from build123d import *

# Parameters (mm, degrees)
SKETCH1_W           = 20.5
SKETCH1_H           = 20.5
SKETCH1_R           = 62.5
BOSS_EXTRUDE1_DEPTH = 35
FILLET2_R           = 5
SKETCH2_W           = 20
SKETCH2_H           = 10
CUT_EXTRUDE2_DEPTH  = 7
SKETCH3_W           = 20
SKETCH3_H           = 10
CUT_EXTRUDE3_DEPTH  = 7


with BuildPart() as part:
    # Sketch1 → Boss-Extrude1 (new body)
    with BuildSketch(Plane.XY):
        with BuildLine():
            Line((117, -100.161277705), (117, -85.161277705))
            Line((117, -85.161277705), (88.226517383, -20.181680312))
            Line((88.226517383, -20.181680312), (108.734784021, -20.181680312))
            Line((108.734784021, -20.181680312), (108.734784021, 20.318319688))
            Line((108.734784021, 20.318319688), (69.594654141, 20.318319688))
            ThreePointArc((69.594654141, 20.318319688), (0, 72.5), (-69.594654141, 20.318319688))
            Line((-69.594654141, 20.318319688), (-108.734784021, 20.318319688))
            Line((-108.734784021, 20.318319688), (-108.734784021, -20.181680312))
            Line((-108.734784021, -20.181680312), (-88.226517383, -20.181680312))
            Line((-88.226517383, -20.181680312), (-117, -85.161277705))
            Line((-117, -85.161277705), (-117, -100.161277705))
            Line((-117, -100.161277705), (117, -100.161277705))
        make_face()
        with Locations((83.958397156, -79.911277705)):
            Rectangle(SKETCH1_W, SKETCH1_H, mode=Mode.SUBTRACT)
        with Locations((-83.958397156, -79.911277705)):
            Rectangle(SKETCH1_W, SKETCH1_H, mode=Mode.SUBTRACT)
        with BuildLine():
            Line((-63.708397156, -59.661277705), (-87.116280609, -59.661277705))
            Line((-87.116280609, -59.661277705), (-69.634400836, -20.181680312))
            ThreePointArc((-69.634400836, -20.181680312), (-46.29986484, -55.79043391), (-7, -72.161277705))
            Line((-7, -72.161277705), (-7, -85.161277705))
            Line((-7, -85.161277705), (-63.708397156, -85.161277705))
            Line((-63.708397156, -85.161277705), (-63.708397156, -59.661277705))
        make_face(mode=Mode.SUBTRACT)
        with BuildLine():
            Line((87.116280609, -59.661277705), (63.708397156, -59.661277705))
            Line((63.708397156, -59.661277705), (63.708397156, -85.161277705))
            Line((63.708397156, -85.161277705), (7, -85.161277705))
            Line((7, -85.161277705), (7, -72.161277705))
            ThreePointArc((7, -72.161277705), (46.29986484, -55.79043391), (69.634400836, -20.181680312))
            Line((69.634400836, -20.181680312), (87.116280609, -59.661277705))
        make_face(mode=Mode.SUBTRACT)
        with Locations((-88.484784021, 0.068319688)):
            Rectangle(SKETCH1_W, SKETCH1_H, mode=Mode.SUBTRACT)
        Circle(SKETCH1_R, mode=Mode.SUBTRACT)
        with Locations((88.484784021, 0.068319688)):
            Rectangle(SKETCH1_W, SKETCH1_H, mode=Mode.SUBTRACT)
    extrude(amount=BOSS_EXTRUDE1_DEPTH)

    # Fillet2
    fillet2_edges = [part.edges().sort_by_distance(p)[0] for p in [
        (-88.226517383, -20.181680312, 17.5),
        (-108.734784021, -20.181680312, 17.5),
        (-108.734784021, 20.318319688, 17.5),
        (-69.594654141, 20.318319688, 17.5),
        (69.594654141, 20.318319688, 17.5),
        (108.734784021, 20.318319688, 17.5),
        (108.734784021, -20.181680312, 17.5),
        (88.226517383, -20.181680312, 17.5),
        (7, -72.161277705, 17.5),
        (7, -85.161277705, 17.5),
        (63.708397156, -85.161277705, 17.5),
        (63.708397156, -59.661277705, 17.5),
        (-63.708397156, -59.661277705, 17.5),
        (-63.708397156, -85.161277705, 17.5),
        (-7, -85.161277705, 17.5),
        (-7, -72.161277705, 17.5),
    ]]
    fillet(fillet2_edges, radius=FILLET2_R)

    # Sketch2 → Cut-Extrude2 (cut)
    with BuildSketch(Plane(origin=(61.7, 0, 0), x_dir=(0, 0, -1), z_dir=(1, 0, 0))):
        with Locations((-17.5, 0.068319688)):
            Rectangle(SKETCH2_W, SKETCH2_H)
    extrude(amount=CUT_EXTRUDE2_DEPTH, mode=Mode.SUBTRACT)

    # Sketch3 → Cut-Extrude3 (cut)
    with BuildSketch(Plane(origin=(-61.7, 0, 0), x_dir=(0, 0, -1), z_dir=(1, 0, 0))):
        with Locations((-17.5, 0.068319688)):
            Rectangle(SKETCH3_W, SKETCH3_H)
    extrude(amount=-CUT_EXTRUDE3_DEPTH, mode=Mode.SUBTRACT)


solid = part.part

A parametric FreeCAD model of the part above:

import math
import FreeCAD as App
import Part
import Sketcher

V = App.Vector
Q = App.Units.Quantity


def edges_at(feature, points):
    """Names of the edges that pass closest to the given points."""
    edges = feature.Shape.Edges
    near = lambda p: min(range(len(edges)), key=lambda i: edges[i].distToShape(Part.Vertex(*p))[0])
    return sorted({f"Edge{near(p) + 1}" for p in points})


def add_polygon(sketch, points):
    """Adds a closed chain of lines whose ends are joined by coincident constraints."""
    first, n = sketch.GeometryCount, len(points)
    for a, b in zip(points, points[1:] + points[:1]):
        sketch.addGeometry(Part.LineSegment(App.Vector(*a, 0), App.Vector(*b, 0)), False)
    for i in range(n):
        sketch.addConstraint(Sketcher.Constraint("Coincident", first + i, 2, first + (i + 1) % n, 1))

doc = App.newDocument("Part")
params = doc.addObject("Spreadsheet::Sheet", "Params")
for row, (alias, value) in enumerate([
    ("sketch1_diameter", "125 mm"),
    ("sketch1_radius", "72.5 mm"),
    ("sketch1_width", "234 mm"),
    ("sketch1_height", "15 mm"),
    ("sketch1_height2", "13 mm"),
    ("pad1_length", "35 mm"),
    ("fillet_radius", "5 mm"),
    ("sketch2_width", "10 mm"),
    ("sketch2_height", "20 mm"),
    ("pocket1_length", "7 mm"),
    ("sketch3_width", "10 mm"),
    ("sketch3_height", "20 mm"),
    ("pocket2_length", "7 mm"),
], start=1):
    params.set(f"A{row}", alias)
    params.set(f"B{row}", "=" + value)
    params.setAlias(f"B{row}", alias)

body = doc.addObject("PartDesign::Body", "Body")

# Sketch on XY plane
sketch1 = body.newObject("Sketcher::SketchObject", "Sketch")
sketch1.AttachmentSupport = (doc.getObject("XY_Plane"), [""])
sketch1.MapMode = "FlatFace"
sketch1.addGeometry(Part.LineSegment(V(117, -100.161278, 0), V(117, -85.161278, 0)), False)  # 0
sketch1.addGeometry(Part.LineSegment(V(117, -85.161278, 0), V(88.226517, -20.18168, 0)), False)  # 1
sketch1.addGeometry(Part.LineSegment(V(88.226517, -20.18168, 0), V(108.734784, -20.18168, 0)), False)  # 2
sketch1.addGeometry(Part.LineSegment(V(108.734784, -20.18168, 0), V(108.734784, 20.31832, 0)), False)  # 3
sketch1.addGeometry(Part.LineSegment(V(108.734784, 20.31832, 0), V(69.594654, 20.31832, 0)), False)  # 4
sketch1.addGeometry(Part.ArcOfCircle(Part.Circle(V(0, 0, 0), V(0, 0, 1), 72.5), math.radians(16.275286), math.radians(163.724714)), False)  # 5
sketch1.addGeometry(Part.LineSegment(V(-69.594654, 20.31832, 0), V(-108.734784, 20.31832, 0)), False)  # 6
sketch1.addGeometry(Part.LineSegment(V(-108.734784, 20.31832, 0), V(-108.734784, -20.18168, 0)), False)  # 7
sketch1.addGeometry(Part.LineSegment(V(-108.734784, -20.18168, 0), V(-88.226517, -20.18168, 0)), False)  # 8
sketch1.addGeometry(Part.LineSegment(V(-88.226517, -20.18168, 0), V(-117, -85.161278, 0)), False)  # 9
sketch1.addGeometry(Part.LineSegment(V(-117, -85.161278, 0), V(-117, -100.161278, 0)), False)  # 10
sketch1.addGeometry(Part.LineSegment(V(-117, -100.161278, 0), V(117, -100.161278, 0)), False)  # 11
add_polygon(sketch1, [(-73.708397, -90.161278), (-94.208397, -90.161278), (-94.208397, -69.661278), (-73.708397, -69.661278)])  # lines 12-15
sketch1.addGeometry(Part.LineSegment(V(-63.708397, -85.161278, 0), V(-63.708397, -59.661278, 0)), False)  # 16
sketch1.addGeometry(Part.LineSegment(V(-63.708397, -59.661278, 0), V(-87.116281, -59.661278, 0)), False)  # 17
sketch1.addGeometry(Part.LineSegment(V(-87.116281, -59.661278, 0), V(-69.634401, -20.18168, 0)), False)  # 18
sketch1.addGeometry(Part.ArcOfCircle(Part.Circle(V(0, 0, 0), V(0, 0, 1), 72.5), math.radians(-163.837174), math.radians(-95.540638)), False)  # 19
sketch1.addGeometry(Part.LineSegment(V(-7, -72.161278, 0), V(-7, -85.161278, 0)), False)  # 20
sketch1.addGeometry(Part.LineSegment(V(-7, -85.161278, 0), V(-63.708397, -85.161278, 0)), False)  # 21
sketch1.addGeometry(Part.LineSegment(V(69.634401, -20.18168, 0), V(87.116281, -59.661278, 0)), False)  # 22
sketch1.addGeometry(Part.LineSegment(V(87.116281, -59.661278, 0), V(63.708397, -59.661278, 0)), False)  # 23
sketch1.addGeometry(Part.LineSegment(V(63.708397, -59.661278, 0), V(63.708397, -85.161278, 0)), False)  # 24
sketch1.addGeometry(Part.LineSegment(V(63.708397, -85.161278, 0), V(7, -85.161278, 0)), False)  # 25
sketch1.addGeometry(Part.LineSegment(V(7, -85.161278, 0), V(7, -72.161278, 0)), False)  # 26
sketch1.addGeometry(Part.ArcOfCircle(Part.Circle(V(0, 0, 0), V(0, 0, 1), 72.5), math.radians(-84.459362), math.radians(-16.162826)), False)  # 27
add_polygon(sketch1, [(94.208397, -90.161278), (73.708397, -90.161278), (73.708397, -69.661278), (94.208397, -69.661278)])  # lines 28-31
add_polygon(sketch1, [(-78.234784, -10.18168), (-98.734784, -10.18168), (-98.734784, 10.31832), (-78.234784, 10.31832)])  # lines 32-35
sketch1.addGeometry(Part.Circle(V(0, 0, 0), V(0, 0, 1), 62.5), False)  # 36
add_polygon(sketch1, [(98.734784, -10.18168), (78.234784, -10.18168), (78.234784, 10.31832), (98.734784, 10.31832)])  # lines 37-40
sketch1.addConstraint(Sketcher.Constraint("Coincident", 0, 2, 1, 1))
sketch1.addConstraint(Sketcher.Constraint("Coincident", 1, 2, 2, 1))
sketch1.addConstraint(Sketcher.Constraint("Coincident", 2, 2, 3, 1))
sketch1.addConstraint(Sketcher.Constraint("Coincident", 3, 2, 4, 1))
sketch1.addConstraint(Sketcher.Constraint("Coincident", 4, 2, 5, 1))
sketch1.addConstraint(Sketcher.Constraint("Coincident", 5, 2, 6, 1))
sketch1.addConstraint(Sketcher.Constraint("Coincident", 6, 2, 7, 1))
sketch1.addConstraint(Sketcher.Constraint("Coincident", 7, 2, 8, 1))
sketch1.addConstraint(Sketcher.Constraint("Coincident", 8, 2, 9, 1))
sketch1.addConstraint(Sketcher.Constraint("Coincident", 9, 2, 10, 1))
sketch1.addConstraint(Sketcher.Constraint("Coincident", 10, 2, 11, 1))
sketch1.addConstraint(Sketcher.Constraint("Coincident", 11, 2, 0, 1))
sketch1.addConstraint(Sketcher.Constraint("Coincident", 16, 2, 17, 1))
sketch1.addConstraint(Sketcher.Constraint("Coincident", 17, 2, 18, 1))
sketch1.addConstraint(Sketcher.Constraint("Coincident", 18, 2, 19, 1))
sketch1.addConstraint(Sketcher.Constraint("Coincident", 19, 2, 20, 1))
sketch1.addConstraint(Sketcher.Constraint("Coincident", 20, 2, 21, 1))
sketch1.addConstraint(Sketcher.Constraint("Coincident", 21, 2, 16, 1))
sketch1.addConstraint(Sketcher.Constraint("Coincident", 22, 2, 23, 1))
sketch1.addConstraint(Sketcher.Constraint("Coincident", 23, 2, 24, 1))
sketch1.addConstraint(Sketcher.Constraint("Coincident", 24, 2, 25, 1))
sketch1.addConstraint(Sketcher.Constraint("Coincident", 25, 2, 26, 1))
sketch1.addConstraint(Sketcher.Constraint("Coincident", 26, 2, 27, 1))
sketch1.addConstraint(Sketcher.Constraint("Coincident", 27, 2, 22, 1))
sketch1.addConstraint(Sketcher.Constraint("Vertical", 0))
sketch1.addConstraint(Sketcher.Constraint("Horizontal", 2))
sketch1.addConstraint(Sketcher.Constraint("Vertical", 3))
sketch1.addConstraint(Sketcher.Constraint("Horizontal", 4))
sketch1.addConstraint(Sketcher.Constraint("Horizontal", 6))
sketch1.addConstraint(Sketcher.Constraint("Vertical", 7))
sketch1.addConstraint(Sketcher.Constraint("Horizontal", 8))
sketch1.addConstraint(Sketcher.Constraint("Vertical", 10))
sketch1.addConstraint(Sketcher.Constraint("Horizontal", 11))
sketch1.addConstraint(Sketcher.Constraint("Horizontal", 12))
sketch1.addConstraint(Sketcher.Constraint("Vertical", 13))
sketch1.addConstraint(Sketcher.Constraint("Horizontal", 14))
sketch1.addConstraint(Sketcher.Constraint("Vertical", 15))
sketch1.addConstraint(Sketcher.Constraint("Vertical", 16))
sketch1.addConstraint(Sketcher.Constraint("Horizontal", 17))
sketch1.addConstraint(Sketcher.Constraint("Vertical", 20))
sketch1.addConstraint(Sketcher.Constraint("Horizontal", 21))
sketch1.addConstraint(Sketcher.Constraint("Horizontal", 23))
sketch1.addConstraint(Sketcher.Constraint("Vertical", 24))
sketch1.addConstraint(Sketcher.Constraint("Horizontal", 25))
sketch1.addConstraint(Sketcher.Constraint("Vertical", 26))
sketch1.addConstraint(Sketcher.Constraint("Horizontal", 28))
sketch1.addConstraint(Sketcher.Constraint("Vertical", 29))
sketch1.addConstraint(Sketcher.Constraint("Horizontal", 30))
sketch1.addConstraint(Sketcher.Constraint("Vertical", 31))
sketch1.addConstraint(Sketcher.Constraint("Horizontal", 32))
sketch1.addConstraint(Sketcher.Constraint("Vertical", 33))
sketch1.addConstraint(Sketcher.Constraint("Horizontal", 34))
sketch1.addConstraint(Sketcher.Constraint("Vertical", 35))
sketch1.addConstraint(Sketcher.Constraint("Horizontal", 37))
sketch1.addConstraint(Sketcher.Constraint("Vertical", 38))
sketch1.addConstraint(Sketcher.Constraint("Horizontal", 39))
sketch1.addConstraint(Sketcher.Constraint("Vertical", 40))
sketch1.addConstraint(Sketcher.Constraint("Coincident", 5, 3, -1, 1))
sketch1.addConstraint(Sketcher.Constraint("Coincident", 19, 3, -1, 1))
sketch1.addConstraint(Sketcher.Constraint("Coincident", 27, 3, -1, 1))
sketch1.addConstraint(Sketcher.Constraint("Coincident", 36, 3, -1, 1))
sketch1.addConstraint(Sketcher.Constraint("Equal", 5, 19))
sketch1.addConstraint(Sketcher.Constraint("Equal", 19, 27))
sketch1.addConstraint(Sketcher.Constraint("Symmetric", 3, 2, 6, 2, -2))
sketch1.addConstraint(Sketcher.Constraint("Symmetric", 1, 2, 8, 2, -2))
sketch1.addConstraint(Sketcher.Constraint("Symmetric", 0, 2, 9, 2, -2))
sketch1.addConstraint(Sketcher.Constraint("Symmetric", 17, 2, 22, 2, -2))
sketch1.addConstraint(Sketcher.Constraint("Symmetric", 21, 2, 24, 2, -2))
sketch1.addConstraint(Sketcher.Constraint("Symmetric", 15, 2, 28, 2, -2))
sketch1.addConstraint(Sketcher.Constraint("Symmetric", 13, 2, 30, 2, -2))
sketch1.addConstraint(Sketcher.Constraint("Symmetric", 35, 2, 37, 2, -2))
sketch1.addConstraint(Sketcher.Constraint("Symmetric", 33, 2, 39, 2, -2))
sketch1.addConstraint(Sketcher.Constraint("Parallel", 9, 18))
sketch1.addConstraint(Sketcher.Constraint("Parallel", 1, 22))
sketch1.addConstraint(Sketcher.Constraint("Horizontal", 8, 2, 18, 2))
sketch1.addConstraint(Sketcher.Constraint("Horizontal", 9, 2, 20, 2))
sketch1.addConstraint(Sketcher.Constraint("Horizontal", 19, 2, 26, 2))
sketch1.addConstraint(Sketcher.Constraint("Equal", 30, 32))
sketch1.addConstraint(Sketcher.Constraint("Equal", 39, 13))
sketch1.addConstraint(Sketcher.Constraint("Equal", 31, 33))
sketch1.addConstraint(Sketcher.Constraint("Diameter", 36, Q("125 mm")))
sketch1.addConstraint(Sketcher.Constraint("Radius", 5, Q("72.5 mm")))
sketch1.addConstraint(Sketcher.Constraint("DistanceX", 11, 1, 11, 2, Q("234 mm")))
sketch1.addConstraint(Sketcher.Constraint("DistanceY", 0, 1, 0, 2, Q("15 mm")))
sketch1.addConstraint(Sketcher.Constraint("DistanceY", 20, 2, 20, 1, Q("13 mm")))
sketch1.addConstraint(Sketcher.Constraint("DistanceX", 12, 2, 12, 1, Q("20.5 mm")))
sketch1.addConstraint(Sketcher.Constraint("DistanceY", 3, 1, 3, 2, Q("40.5 mm")))
sketch1.addConstraint(Sketcher.Constraint("DistanceY", 16, 1, 16, 2, Q("25.5 mm")))
sketch1.addConstraint(Sketcher.Constraint("DistanceX", 19, 2, -1, 1, Q("7 mm")))
sketch1.addConstraint(Sketcher.Constraint("DistanceY", 12, 2, 9, 2, Q("5 mm")))
sketch1.addConstraint(Sketcher.Constraint("DistanceX", 14, 2, 16, 2, Q("10 mm")))
sketch1.addConstraint(Sketcher.Constraint("DistanceX", 7, 2, 32, 2, Q("10 mm")))
sketch1.addConstraint(Sketcher.Constraint("DistanceY", 7, 2, 32, 2, Q("10 mm")))
sketch1.addConstraint(Sketcher.Constraint("DistanceX", 4, 2, 4, 1, Q("39.14013 mm")))
sketch1.addConstraint(Sketcher.Constraint("DistanceX", 18, 2, -1, 1, Q("69.634401 mm")))
sketch1.addConstraint(Sketcher.Constraint("Distance", 1, Q("71.065191 mm")))
sketch1.addConstraint(Sketcher.Constraint("DistanceX", 17, 2, 17, 1, Q("23.407883 mm")))
sketch1.setExpression("Constraints[96]", "Params.sketch1_diameter")
sketch1.setExpression("Constraints[97]", "Params.sketch1_radius")
sketch1.setExpression("Constraints[98]", "Params.sketch1_width")
sketch1.setExpression("Constraints[99]", "Params.sketch1_height")
sketch1.setExpression("Constraints[100]", "Params.sketch1_height2")
pad1 = body.newObject("PartDesign::Pad", "Pad")
pad1.Profile = sketch1
pad1.setExpression("Length", "Params.pad1_length")
doc.recompute()

fillet = body.newObject("PartDesign::Fillet", "Fillet")
fillet.Base = (pad1, edges_at(pad1, [
    (-88.227, -20.182, 17.5),
    (-108.735, -20.182, 17.5),
    (-108.735, 20.318, 17.5),
    (-69.595, 20.318, 17.5),
    (69.595, 20.318, 17.5),
    (108.735, 20.318, 17.5),
    (108.735, -20.182, 17.5),
    (88.227, -20.182, 17.5),
    (7, -72.161, 17.5),
    (7, -85.161, 17.5),
    (63.708, -85.161, 17.5),
    (63.708, -59.661, 17.5),
    (-63.708, -59.661, 17.5),
    (-63.708, -85.161, 17.5),
    (-7, -85.161, 17.5),
    (-7, -72.161, 17.5),
]))
fillet.setExpression("Radius", "Params.fillet_radius")

# Sketch on YZ plane
sketch2 = body.newObject("Sketcher::SketchObject", "Sketch001")
sketch2.AttachmentSupport = (doc.getObject("YZ_Plane"), [""])
sketch2.MapMode = "FlatFace"
sketch2.AttachmentOffset = App.Placement(V(0, 0, 61.7), App.Rotation())
add_polygon(sketch2, [(5.06832, 27.5), (-4.93168, 27.5), (-4.93168, 7.5), (5.06832, 7.5)])  # lines 0-3
sketch2.addConstraint(Sketcher.Constraint("Horizontal", 0))
sketch2.addConstraint(Sketcher.Constraint("Vertical", 1))
sketch2.addConstraint(Sketcher.Constraint("Horizontal", 2))
sketch2.addConstraint(Sketcher.Constraint("Vertical", 3))
sketch2.addConstraint(Sketcher.Constraint("DistanceX", 0, 2, 0, 1, Q("10 mm")))
sketch2.addConstraint(Sketcher.Constraint("DistanceY", 1, 2, 1, 1, Q("20 mm")))
sketch2.addConstraint(Sketcher.Constraint("DistanceY", -1, 1, 0, 2, Q("27.5 mm")))
sketch2.addConstraint(Sketcher.Constraint("DistanceX", 0, 2, -1, 1, Q("4.93168 mm")))
sketch2.setExpression("Constraints[8]", "Params.sketch2_width")
sketch2.setExpression("Constraints[9]", "Params.sketch2_height")
pocket1 = body.newObject("PartDesign::Pocket", "Pocket")
pocket1.Profile = sketch2
pocket1.setExpression("Length", "Params.pocket1_length")
pocket1.Reversed = True

# Sketch on YZ plane
sketch3 = body.newObject("Sketcher::SketchObject", "Sketch002")
sketch3.AttachmentSupport = (doc.getObject("YZ_Plane"), [""])
sketch3.MapMode = "FlatFace"
sketch3.AttachmentOffset = App.Placement(V(0, 0, -61.7), App.Rotation())
add_polygon(sketch3, [(5.06832, 27.5), (-4.93168, 27.5), (-4.93168, 7.5), (5.06832, 7.5)])  # lines 0-3
sketch3.addConstraint(Sketcher.Constraint("Horizontal", 0))
sketch3.addConstraint(Sketcher.Constraint("Vertical", 1))
sketch3.addConstraint(Sketcher.Constraint("Horizontal", 2))
sketch3.addConstraint(Sketcher.Constraint("Vertical", 3))
sketch3.addConstraint(Sketcher.Constraint("DistanceX", 0, 2, 0, 1, Q("10 mm")))
sketch3.addConstraint(Sketcher.Constraint("DistanceY", 1, 2, 1, 1, Q("20 mm")))
sketch3.addConstraint(Sketcher.Constraint("DistanceY", -1, 1, 0, 2, Q("27.5 mm")))
sketch3.addConstraint(Sketcher.Constraint("DistanceX", 0, 2, -1, 1, Q("4.93168 mm")))
sketch3.setExpression("Constraints[8]", "Params.sketch3_width")
sketch3.setExpression("Constraints[9]", "Params.sketch3_height")
pocket2 = body.newObject("PartDesign::Pocket", "Pocket001")
pocket2.Profile = sketch3
pocket2.setExpression("Length", "Params.pocket2_length")

doc.recompute()
